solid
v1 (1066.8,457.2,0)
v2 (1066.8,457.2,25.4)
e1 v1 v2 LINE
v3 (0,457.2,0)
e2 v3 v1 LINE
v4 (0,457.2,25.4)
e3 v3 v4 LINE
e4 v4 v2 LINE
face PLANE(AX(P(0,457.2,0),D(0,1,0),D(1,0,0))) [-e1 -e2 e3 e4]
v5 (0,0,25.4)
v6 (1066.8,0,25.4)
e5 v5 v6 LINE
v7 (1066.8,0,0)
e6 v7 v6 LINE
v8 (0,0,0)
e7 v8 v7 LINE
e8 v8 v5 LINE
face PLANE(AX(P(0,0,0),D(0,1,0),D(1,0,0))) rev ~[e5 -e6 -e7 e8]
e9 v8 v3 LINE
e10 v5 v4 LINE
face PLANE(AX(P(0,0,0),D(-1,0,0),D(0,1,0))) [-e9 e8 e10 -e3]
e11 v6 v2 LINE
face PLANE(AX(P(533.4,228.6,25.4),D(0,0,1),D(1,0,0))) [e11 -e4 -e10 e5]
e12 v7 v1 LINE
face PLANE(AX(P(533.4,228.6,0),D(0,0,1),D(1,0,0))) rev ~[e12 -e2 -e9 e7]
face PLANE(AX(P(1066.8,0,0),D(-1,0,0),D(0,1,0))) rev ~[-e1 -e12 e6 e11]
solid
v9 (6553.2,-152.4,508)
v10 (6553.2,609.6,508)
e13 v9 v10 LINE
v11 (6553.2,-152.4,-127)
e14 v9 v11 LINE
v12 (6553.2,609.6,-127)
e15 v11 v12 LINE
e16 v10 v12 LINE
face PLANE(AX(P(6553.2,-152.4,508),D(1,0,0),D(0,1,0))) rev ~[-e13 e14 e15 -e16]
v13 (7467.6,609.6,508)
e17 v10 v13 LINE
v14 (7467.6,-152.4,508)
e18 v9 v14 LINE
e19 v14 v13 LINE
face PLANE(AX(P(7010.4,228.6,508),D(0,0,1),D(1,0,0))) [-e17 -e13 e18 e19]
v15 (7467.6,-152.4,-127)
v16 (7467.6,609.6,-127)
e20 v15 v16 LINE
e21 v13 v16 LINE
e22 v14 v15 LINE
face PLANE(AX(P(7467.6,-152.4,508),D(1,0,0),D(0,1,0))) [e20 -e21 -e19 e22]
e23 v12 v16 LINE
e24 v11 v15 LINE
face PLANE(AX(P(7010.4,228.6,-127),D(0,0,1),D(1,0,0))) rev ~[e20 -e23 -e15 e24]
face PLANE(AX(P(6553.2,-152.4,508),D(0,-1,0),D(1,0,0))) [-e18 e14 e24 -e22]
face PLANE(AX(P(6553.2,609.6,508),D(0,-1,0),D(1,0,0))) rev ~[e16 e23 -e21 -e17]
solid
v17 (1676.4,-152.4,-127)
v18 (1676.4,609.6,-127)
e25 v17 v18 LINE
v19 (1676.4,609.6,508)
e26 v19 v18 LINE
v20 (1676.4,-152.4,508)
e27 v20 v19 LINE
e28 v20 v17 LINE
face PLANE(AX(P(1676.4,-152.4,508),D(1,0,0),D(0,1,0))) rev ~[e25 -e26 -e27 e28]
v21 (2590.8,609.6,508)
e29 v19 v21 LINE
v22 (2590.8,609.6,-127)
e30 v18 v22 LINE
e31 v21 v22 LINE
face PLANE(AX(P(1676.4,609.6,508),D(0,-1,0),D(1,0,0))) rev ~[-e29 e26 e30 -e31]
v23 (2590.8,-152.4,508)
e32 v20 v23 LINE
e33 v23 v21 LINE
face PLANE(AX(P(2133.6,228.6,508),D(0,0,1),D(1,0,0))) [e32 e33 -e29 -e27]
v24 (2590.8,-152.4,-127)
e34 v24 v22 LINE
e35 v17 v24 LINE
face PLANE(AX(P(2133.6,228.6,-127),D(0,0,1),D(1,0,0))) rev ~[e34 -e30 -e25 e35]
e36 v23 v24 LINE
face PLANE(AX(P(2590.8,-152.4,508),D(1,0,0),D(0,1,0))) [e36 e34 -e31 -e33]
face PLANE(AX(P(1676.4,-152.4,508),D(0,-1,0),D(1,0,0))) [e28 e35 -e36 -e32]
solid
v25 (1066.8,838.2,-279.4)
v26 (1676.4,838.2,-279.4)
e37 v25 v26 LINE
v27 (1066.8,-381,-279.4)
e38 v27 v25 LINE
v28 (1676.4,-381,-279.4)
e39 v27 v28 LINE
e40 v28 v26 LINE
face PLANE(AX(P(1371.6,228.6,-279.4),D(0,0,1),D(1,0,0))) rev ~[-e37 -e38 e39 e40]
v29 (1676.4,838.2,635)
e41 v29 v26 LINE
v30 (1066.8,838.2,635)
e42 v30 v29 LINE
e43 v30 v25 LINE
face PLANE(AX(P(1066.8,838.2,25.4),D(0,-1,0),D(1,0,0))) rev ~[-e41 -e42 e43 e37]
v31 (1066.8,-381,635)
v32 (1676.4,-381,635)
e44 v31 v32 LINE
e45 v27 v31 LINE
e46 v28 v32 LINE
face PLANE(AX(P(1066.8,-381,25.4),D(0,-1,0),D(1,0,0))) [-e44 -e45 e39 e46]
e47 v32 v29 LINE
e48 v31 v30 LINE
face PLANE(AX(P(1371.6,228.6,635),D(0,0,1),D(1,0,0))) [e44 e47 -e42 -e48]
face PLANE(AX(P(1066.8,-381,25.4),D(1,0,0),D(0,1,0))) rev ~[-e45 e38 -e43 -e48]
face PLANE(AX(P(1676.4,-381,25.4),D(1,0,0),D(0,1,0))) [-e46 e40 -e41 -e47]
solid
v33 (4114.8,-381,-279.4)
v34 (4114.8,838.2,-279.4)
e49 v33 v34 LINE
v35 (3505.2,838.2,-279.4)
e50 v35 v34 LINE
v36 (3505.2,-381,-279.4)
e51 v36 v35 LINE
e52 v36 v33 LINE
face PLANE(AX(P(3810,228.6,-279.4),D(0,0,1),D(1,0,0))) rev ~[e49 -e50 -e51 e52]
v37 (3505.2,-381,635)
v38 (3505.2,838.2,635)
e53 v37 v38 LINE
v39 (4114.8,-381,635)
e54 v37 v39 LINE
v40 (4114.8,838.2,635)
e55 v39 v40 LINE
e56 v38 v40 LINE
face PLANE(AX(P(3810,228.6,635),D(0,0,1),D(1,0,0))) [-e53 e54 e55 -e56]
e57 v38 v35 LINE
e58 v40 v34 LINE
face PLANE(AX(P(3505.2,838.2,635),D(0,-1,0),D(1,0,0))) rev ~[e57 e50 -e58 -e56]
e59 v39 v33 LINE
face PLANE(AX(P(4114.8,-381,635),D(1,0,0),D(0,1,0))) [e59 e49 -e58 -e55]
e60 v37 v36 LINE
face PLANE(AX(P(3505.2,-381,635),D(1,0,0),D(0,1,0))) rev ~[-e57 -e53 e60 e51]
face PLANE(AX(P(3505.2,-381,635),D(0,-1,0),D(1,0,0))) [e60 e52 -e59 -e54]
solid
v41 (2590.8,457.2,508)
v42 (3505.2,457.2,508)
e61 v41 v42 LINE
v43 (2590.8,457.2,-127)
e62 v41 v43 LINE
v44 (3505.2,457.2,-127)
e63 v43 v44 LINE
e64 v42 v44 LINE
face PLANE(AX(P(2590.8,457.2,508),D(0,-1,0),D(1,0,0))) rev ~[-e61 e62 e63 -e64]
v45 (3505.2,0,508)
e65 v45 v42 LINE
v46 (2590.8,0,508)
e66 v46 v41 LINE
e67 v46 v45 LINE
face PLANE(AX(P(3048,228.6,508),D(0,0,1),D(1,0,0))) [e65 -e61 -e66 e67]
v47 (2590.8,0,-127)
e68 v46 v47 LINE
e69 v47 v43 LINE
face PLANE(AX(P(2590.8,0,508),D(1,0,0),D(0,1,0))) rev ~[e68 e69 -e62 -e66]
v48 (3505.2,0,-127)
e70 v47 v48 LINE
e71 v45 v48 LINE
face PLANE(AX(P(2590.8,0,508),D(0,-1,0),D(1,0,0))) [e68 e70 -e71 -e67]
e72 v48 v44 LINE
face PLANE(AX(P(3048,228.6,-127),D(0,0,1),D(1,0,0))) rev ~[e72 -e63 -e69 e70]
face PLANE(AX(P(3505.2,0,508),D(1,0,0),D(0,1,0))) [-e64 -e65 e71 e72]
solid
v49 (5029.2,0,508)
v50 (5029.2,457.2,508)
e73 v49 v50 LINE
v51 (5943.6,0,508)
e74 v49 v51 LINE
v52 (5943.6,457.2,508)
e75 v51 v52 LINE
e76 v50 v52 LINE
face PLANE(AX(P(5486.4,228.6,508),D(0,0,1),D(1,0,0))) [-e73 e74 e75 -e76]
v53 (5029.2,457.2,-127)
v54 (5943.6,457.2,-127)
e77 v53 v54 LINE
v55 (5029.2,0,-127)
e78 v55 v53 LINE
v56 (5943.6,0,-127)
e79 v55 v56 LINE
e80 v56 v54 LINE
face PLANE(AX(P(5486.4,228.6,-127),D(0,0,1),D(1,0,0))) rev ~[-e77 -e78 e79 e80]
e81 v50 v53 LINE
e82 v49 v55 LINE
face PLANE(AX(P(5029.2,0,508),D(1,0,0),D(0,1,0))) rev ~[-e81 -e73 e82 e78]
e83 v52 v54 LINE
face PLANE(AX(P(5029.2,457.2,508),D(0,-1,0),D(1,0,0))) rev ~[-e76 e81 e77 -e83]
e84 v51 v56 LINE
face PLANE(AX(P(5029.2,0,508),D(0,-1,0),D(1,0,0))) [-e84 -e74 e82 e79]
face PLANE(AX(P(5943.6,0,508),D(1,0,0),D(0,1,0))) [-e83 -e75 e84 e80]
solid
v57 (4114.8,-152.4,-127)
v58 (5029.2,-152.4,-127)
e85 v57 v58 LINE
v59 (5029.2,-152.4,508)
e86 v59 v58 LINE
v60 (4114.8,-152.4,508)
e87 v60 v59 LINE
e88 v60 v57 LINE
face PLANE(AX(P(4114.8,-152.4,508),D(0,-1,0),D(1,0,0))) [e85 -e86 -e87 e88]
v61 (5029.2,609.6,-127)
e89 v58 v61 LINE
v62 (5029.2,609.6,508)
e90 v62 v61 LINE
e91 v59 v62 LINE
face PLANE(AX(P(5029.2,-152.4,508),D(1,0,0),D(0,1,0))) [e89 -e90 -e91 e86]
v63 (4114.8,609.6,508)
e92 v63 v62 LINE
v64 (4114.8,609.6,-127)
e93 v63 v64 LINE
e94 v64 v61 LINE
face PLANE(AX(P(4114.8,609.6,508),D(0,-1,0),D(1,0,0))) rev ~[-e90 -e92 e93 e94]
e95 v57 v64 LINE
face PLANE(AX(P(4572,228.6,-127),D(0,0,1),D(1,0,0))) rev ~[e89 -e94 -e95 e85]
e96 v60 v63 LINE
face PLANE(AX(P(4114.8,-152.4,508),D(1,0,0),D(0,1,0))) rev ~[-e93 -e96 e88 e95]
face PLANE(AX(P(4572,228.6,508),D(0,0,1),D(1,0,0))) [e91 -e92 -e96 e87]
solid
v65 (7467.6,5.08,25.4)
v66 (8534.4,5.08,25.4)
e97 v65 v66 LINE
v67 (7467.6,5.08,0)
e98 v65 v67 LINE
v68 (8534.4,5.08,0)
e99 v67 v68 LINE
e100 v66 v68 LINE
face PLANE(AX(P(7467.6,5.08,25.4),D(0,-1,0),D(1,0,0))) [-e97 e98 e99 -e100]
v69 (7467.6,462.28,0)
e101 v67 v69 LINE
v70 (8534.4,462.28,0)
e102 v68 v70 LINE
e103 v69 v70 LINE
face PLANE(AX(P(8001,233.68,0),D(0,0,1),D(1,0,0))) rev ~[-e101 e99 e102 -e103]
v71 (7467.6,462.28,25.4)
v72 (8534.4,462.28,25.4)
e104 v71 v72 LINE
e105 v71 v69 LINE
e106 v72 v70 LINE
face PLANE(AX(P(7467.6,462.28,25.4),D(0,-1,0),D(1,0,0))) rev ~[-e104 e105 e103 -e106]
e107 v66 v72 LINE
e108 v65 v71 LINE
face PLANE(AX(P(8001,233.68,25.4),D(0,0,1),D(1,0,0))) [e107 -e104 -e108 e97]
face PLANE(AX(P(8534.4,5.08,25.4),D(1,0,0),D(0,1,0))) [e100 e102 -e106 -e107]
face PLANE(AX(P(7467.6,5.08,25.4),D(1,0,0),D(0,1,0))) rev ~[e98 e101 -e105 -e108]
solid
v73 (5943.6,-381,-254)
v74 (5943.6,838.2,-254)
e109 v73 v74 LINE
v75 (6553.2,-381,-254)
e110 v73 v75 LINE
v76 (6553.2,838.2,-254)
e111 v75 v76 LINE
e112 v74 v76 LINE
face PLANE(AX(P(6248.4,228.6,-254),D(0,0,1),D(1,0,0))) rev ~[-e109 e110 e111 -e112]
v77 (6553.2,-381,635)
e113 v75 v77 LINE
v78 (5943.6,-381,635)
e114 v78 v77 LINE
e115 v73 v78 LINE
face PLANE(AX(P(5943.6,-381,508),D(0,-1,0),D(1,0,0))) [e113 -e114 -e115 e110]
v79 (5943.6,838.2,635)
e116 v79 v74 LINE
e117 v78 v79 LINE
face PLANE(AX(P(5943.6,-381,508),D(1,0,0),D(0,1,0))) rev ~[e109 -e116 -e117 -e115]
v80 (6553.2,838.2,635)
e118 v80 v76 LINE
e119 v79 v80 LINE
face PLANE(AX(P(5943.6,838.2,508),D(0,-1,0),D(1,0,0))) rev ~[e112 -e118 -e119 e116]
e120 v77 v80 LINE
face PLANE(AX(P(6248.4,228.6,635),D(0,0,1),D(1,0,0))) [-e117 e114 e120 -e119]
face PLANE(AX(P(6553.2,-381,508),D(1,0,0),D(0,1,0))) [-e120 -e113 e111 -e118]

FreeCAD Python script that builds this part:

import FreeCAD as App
import Part
import Sketcher

V = App.Vector
Q = App.Units.Quantity


def add_polygon(sketch, points):
    """Adds a closed chain of lines whose ends are joined by coincident constraints."""
    first, n = sketch.GeometryCount, len(points)
    for a, b in zip(points, points[1:] + points[:1]):
        sketch.addGeometry(Part.LineSegment(App.Vector(*a, 0), App.Vector(*b, 0)), False)
    for i in range(n):
        sketch.addConstraint(Sketcher.Constraint("Coincident", first + i, 2, first + (i + 1) % n, 1))

doc = App.newDocument("Part")
params = doc.addObject("Spreadsheet::Sheet", "Params")
for row, (alias, value) in enumerate([
    ("sketch1_width", "42 in"),
    ("sketch1_height", "18 in"),
    ("pad1_length", "1 in"),
    ("sketch2_width", "24 in"),
    ("sketch2_height", "48 in"),
    ("pad2_length", "24 in"),
    ("pad2_length2", "12 in"),
    ("sketch3_width", "36 in"),
    ("sketch3_height", "18 in"),
    ("pad3_length", "25 in"),
    ("sketch4_width", "36 in"),
    ("sketch4_height", "30 in"),
    ("pad4_length", "25 in"),
    ("sketch5_width", "24 in"),
    ("sketch5_height", "48 in"),
    ("pad5_length", "36 in"),
    ("sketch6_width", "36 in"),
    ("sketch6_height", "30 in"),
    ("pad6_length", "25 in"),
    ("sketch7_width", "36 in"),
    ("sketch7_height", "18 in"),
    ("pad7_length", "25 in"),
    ("sketch8_width", "24 in"),
    ("sketch8_height", "48 in"),
    ("pad8_length", "5 in"),
    ("pad8_length2", "30 in"),
    ("sketch9_width", "36 in"),
    ("sketch9_height", "30 in"),
    ("pad9_length", "25 in"),
    ("sketch10_width", "42 in"),
    ("sketch10_height", "18 in"),
    ("pad10_length", "1 in"),
], start=1):
    params.set(f"A{row}", alias)
    params.set(f"B{row}", "=" + value)
    params.setAlias(f"B{row}", alias)

body = doc.addObject("PartDesign::Body", "Body")

# Sketch on XY plane
sketch1 = doc.addObject("Sketcher::SketchObject", "Sketch")
body.addObject(sketch1)
sketch1.AttachmentSupport = (doc.XY_Plane, [""])
sketch1.MapMode = "FlatFace"
add_polygon(sketch1, [(0, 457), (0, 0), (1067, 0), (1067, 457)])  # lines 0-3
sketch1.addConstraint([
    Sketcher.Constraint("Vertical", 0),
    Sketcher.Constraint("Horizontal", 1),
    Sketcher.Constraint("Vertical", 2),
    Sketcher.Constraint("Horizontal", 3),
    Sketcher.Constraint("Coincident", 0, 2, -1, 1),
    Sketcher.Constraint("DistanceX", 1, 1, 1, 2, Q("42 in")),
    Sketcher.Constraint("DistanceY", 0, 2, 0, 1, Q("18 in")),
])
sketch1.setExpression("Constraints[9]", "Params.sketch1_width")
sketch1.setExpression("Constraints[10]", "Params.sketch1_height")
pad1 = doc.addObject("PartDesign::Pad", "Pad")
body.addObject(pad1)
pad1.Profile = sketch1
pad1.setExpression("Length", "Params.pad1_length")
body2 = doc.addObject("PartDesign::Body", "Body001")

# Sketch on XY plane
sketch2 = doc.addObject("Sketcher::SketchObject", "Sketch001")
body2.addObject(sketch2)
sketch2.AttachmentSupport = (doc.getObject("XY_Plane001"), [""])
sketch2.MapMode = "FlatFace"
sketch2.AttachmentOffset = App.Placement(V(0, 0, 1 * 25.4), App.Rotation())
add_polygon(sketch2, [(1067, 838), (1067, -381), (1676, -381), (1676, 838)])  # lines 0-3
sketch2.addConstraint([
    Sketcher.Constraint("Vertical", 0),
    Sketcher.Constraint("Horizontal", 1),
    Sketcher.Constraint("Vertical", 2),
    Sketcher.Constraint("Horizontal", 3),
    Sketcher.Constraint("DistanceX", 1, 1, 1, 2, Q("24 in")),
    Sketcher.Constraint("DistanceY", 0, 2, 0, 1, Q("48 in")),
    Sketcher.Constraint("DistanceX", -1, 1, 0, 2, Q("42 in")),
    Sketcher.Constraint("DistanceY", 0, 2, -1, 1, Q("15 in")),
])
sketch2.setExpression("Constraints[8]", "Params.sketch2_width")
sketch2.setExpression("Constraints[9]", "Params.sketch2_height")
pad2 = doc.addObject("PartDesign::Pad", "Pad001")
body2.addObject(pad2)
pad2.Profile = sketch2
pad2.Type = "TwoLengths"
pad2.setExpression("Length", "Params.pad2_length")
pad2.setExpression("Length2", "Params.pad2_length2")
body3 = doc.addObject("PartDesign::Body", "Body002")

# Sketch on XY plane
sketch3 = doc.addObject("Sketcher::SketchObject", "Sketch002")
body3.addObject(sketch3)
sketch3.AttachmentSupport = (doc.getObject("XY_Plane002"), [""])
sketch3.MapMode = "FlatFace"
sketch3.AttachmentOffset = App.Placement(V(0, 0, 20 * 25.4), App.Rotation())
add_polygon(sketch3, [(2591, 457), (2591, 0), (3505, 0), (3505, 457)])  # lines 0-3
sketch3.addConstraint([
    Sketcher.Constraint("Vertical", 0),
    Sketcher.Constraint("Horizontal", 1),
    Sketcher.Constraint("Vertical", 2),
    Sketcher.Constraint("Horizontal", 3),
    Sketcher.Constraint("PointOnObject", 0, 2, -1),
    Sketcher.Constraint("DistanceX", 1, 1, 1, 2, Q("36 in")),
    Sketcher.Constraint("DistanceY", 0, 2, 0, 1, Q("18 in")),
    Sketcher.Constraint("DistanceX", -1, 1, 0, 2, Q("102 in")),
])
sketch3.setExpression("Constraints[9]", "Params.sketch3_width")
sketch3.setExpression("Constraints[10]", "Params.sketch3_height")
pad3 = doc.addObject("PartDesign::Pad", "Pad002")
body3.addObject(pad3)
pad3.Profile = sketch3
pad3.setExpression("Length", "Params.pad3_length")
pad3.Reversed = True
body4 = doc.addObject("PartDesign::Body", "Body003")

# Sketch on XY plane
sketch4 = doc.addObject("Sketcher::SketchObject", "Sketch003")
body4.addObject(sketch4)
sketch4.AttachmentSupport = (doc.getObject("XY_Plane003"), [""])
sketch4.MapMode = "FlatFace"
sketch4.AttachmentOffset = App.Placement(V(0, 0, 20 * 25.4), App.Rotation())
add_polygon(sketch4, [(1676, 610), (1676, -152), (2591, -152), (2591, 610)])  # lines 0-3
sketch4.addConstraint([
    Sketcher.Constraint("Vertical", 0),
    Sketcher.Constraint("Horizontal", 1),
    Sketcher.Constraint("Vertical", 2),
    Sketcher.Constraint("Horizontal", 3),
    Sketcher.Constraint("DistanceX", 1, 1, 1, 2, Q("36 in")),
    Sketcher.Constraint("DistanceY", 0, 2, 0, 1, Q("30 in")),
    Sketcher.Constraint("DistanceX", -1, 1, 0, 2, Q("66 in")),
    Sketcher.Constraint("DistanceY", 0, 2, -1, 1, Q("6 in")),
])
sketch4.setExpression("Constraints[8]", "Params.sketch4_width")
sketch4.setExpression("Constraints[9]", "Params.sketch4_height")
pad4 = doc.addObject("PartDesign::Pad", "Pad003")
body4.addObject(pad4)
pad4.Profile = sketch4
pad4.setExpression("Length", "Params.pad4_length")
pad4.Reversed = True
body5 = doc.addObject("PartDesign::Body", "Body004")

# Sketch on XY plane
sketch5 = doc.addObject("Sketcher::SketchObject", "Sketch004")
body5.addObject(sketch5)
sketch5.AttachmentSupport = (doc.getObject("XY_Plane004"), [""])
sketch5.MapMode = "FlatFace"
sketch5.AttachmentOffset = App.Placement(V(0, 0, 25 * 25.4), App.Rotation())
add_polygon(sketch5, [(3505, 838), (3505, -381), (4115, -381), (4115, 838)])  # lines 0-3
sketch5.addConstraint([
    Sketcher.Constraint("Vertical", 0),
    Sketcher.Constraint("Horizontal", 1),
    Sketcher.Constraint("Vertical", 2),
    Sketcher.Constraint("Horizontal", 3),
    Sketcher.Constraint("DistanceX", 1, 1, 1, 2, Q("24 in")),
    Sketcher.Constraint("DistanceY", 0, 2, 0, 1, Q("48 in")),
    Sketcher.Constraint("DistanceX", -1, 1, 0, 2, Q("138 in")),
    Sketcher.Constraint("DistanceY", 0, 2, -1, 1, Q("15 in")),
])
sketch5.setExpression("Constraints[8]", "Params.sketch5_width")
sketch5.setExpression("Constraints[9]", "Params.sketch5_height")
pad5 = doc.addObject("PartDesign::Pad", "Pad004")
body5.addObject(pad5)
pad5.Profile = sketch5
pad5.setExpression("Length", "Params.pad5_length")
pad5.Reversed = True
body6 = doc.addObject("PartDesign::Body", "Body005")

# Sketch on XY plane
sketch6 = doc.addObject("Sketcher::SketchObject", "Sketch005")
body6.addObject(sketch6)
sketch6.AttachmentSupport = (doc.getObject("XY_Plane005"), [""])
sketch6.MapMode = "FlatFace"
sketch6.AttachmentOffset = App.Placement(V(0, 0, 20 * 25.4), App.Rotation())
add_polygon(sketch6, [(4115, 610), (4115, -152), (5029, -152), (5029, 610)])  # lines 0-3
sketch6.addConstraint([
    Sketcher.Constraint("Vertical", 0),
    Sketcher.Constraint("Horizontal", 1),
    Sketcher.Constraint("Vertical", 2),
    Sketcher.Constraint("Horizontal", 3),
    Sketcher.Constraint("DistanceX", 1, 1, 1, 2, Q("36 in")),
    Sketcher.Constraint("DistanceY", 0, 2, 0, 1, Q("30 in")),
    Sketcher.Constraint("DistanceX", -1, 1, 0, 2, Q("162 in")),
    Sketcher.Constraint("DistanceY", 0, 2, -1, 1, Q("6 in")),
])
sketch6.setExpression("Constraints[8]", "Params.sketch6_width")
sketch6.setExpression("Constraints[9]", "Params.sketch6_height")
pad6 = doc.addObject("PartDesign::Pad", "Pad005")
body6.addObject(pad6)
pad6.Profile = sketch6
pad6.setExpression("Length", "Params.pad6_length")
pad6.Reversed = True
body7 = doc.addObject("PartDesign::Body", "Body006")

# Sketch on XY plane
sketch7 = doc.addObject("Sketcher::SketchObject", "Sketch006")
body7.addObject(sketch7)
sketch7.AttachmentSupport = (doc.getObject("XY_Plane006"), [""])
sketch7.MapMode = "FlatFace"
sketch7.AttachmentOffset = App.Placement(V(0, 0, 20 * 25.4), App.Rotation())
add_polygon(sketch7, [(5029, 457), (5029, 0), (5944, 0), (5944, 457)])  # lines 0-3
sketch7.addConstraint([
    Sketcher.Constraint("Vertical", 0),
    Sketcher.Constraint("Horizontal", 1),
    Sketcher.Constraint("Vertical", 2),
    Sketcher.Constraint("Horizontal", 3),
    Sketcher.Constraint("PointOnObject", 0, 2, -1),
    Sketcher.Constraint("DistanceX", 1, 1, 1, 2, Q("36 in")),
    Sketcher.Constraint("DistanceY", 0, 2, 0, 1, Q("18 in")),
    Sketcher.Constraint("DistanceX", -1, 1, 0, 2, Q("198 in")),
])
sketch7.setExpression("Constraints[9]", "Params.sketch7_width")
sketch7.setExpression("Constraints[10]", "Params.sketch7_height")
pad7 = doc.addObject("PartDesign::Pad", "Pad006")
body7.addObject(pad7)
pad7.Profile = sketch7
pad7.setExpression("Length", "Params.pad7_length")
pad7.Reversed = True
body8 = doc.addObject("PartDesign::Body", "Body007")

# Sketch on XY plane
sketch8 = doc.addObject("Sketcher::SketchObject", "Sketch007")
body8.addObject(sketch8)
sketch8.AttachmentSupport = (doc.getObject("XY_Plane007"), [""])
sketch8.MapMode = "FlatFace"
sketch8.AttachmentOffset = App.Placement(V(0, 0, 20 * 25.4), App.Rotation())
add_polygon(sketch8, [(5944, 838), (5944, -381), (6553, -381), (6553, 838)])  # lines 0-3
sketch8.addConstraint([
    Sketcher.Constraint("Vertical", 0),
    Sketcher.Constraint("Horizontal", 1),
    Sketcher.Constraint("Vertical", 2),
    Sketcher.Constraint("Horizontal", 3),
    Sketcher.Constraint("DistanceX", 1, 1, 1, 2, Q("24 in")),
    Sketcher.Constraint("DistanceY", 0, 2, 0, 1, Q("48 in")),
    Sketcher.Constraint("DistanceX", -1, 1, 0, 2, Q("234 in")),
    Sketcher.Constraint("DistanceY", 0, 2, -1, 1, Q("15 in")),
])
sketch8.setExpression("Constraints[8]", "Params.sketch8_width")
sketch8.setExpression("Constraints[9]", "Params.sketch8_height")
pad8 = doc.addObject("PartDesign::Pad", "Pad007")
body8.addObject(pad8)
pad8.Profile = sketch8
pad8.Type = "TwoLengths"
pad8.setExpression("Length", "Params.pad8_length")
pad8.setExpression("Length2", "Params.pad8_length2")
body9 = doc.addObject("PartDesign::Body", "Body008")

# Sketch on XY plane
sketch9 = doc.addObject("Sketcher::SketchObject", "Sketch008")
body9.addObject(sketch9)
sketch9.AttachmentSupport = (doc.getObject("XY_Plane008"), [""])
sketch9.MapMode = "FlatFace"
sketch9.AttachmentOffset = App.Placement(V(0, 0, 20 * 25.4), App.Rotation())
add_polygon(sketch9, [(6553, 610), (6553, -152), (7468, -152), (7468, 610)])  # lines 0-3
sketch9.addConstraint([
    Sketcher.Constraint("Vertical", 0),
    Sketcher.Constraint("Horizontal", 1),
    Sketcher.Constraint("Vertical", 2),
    Sketcher.Constraint("Horizontal", 3),
    Sketcher.Constraint("DistanceX", 1, 1, 1, 2, Q("36 in")),
    Sketcher.Constraint("DistanceY", 0, 2, 0, 1, Q("30 in")),
    Sketcher.Constraint("DistanceX", -1, 1, 0, 2, Q("258 in")),
    Sketcher.Constraint("DistanceY", 0, 2, -1, 1, Q("6 in")),
])
sketch9.setExpression("Constraints[8]", "Params.sketch9_width")
sketch9.setExpression("Constraints[9]", "Params.sketch9_height")
pad9 = doc.addObject("PartDesign::Pad", "Pad008")
body9.addObject(pad9)
pad9.Profile = sketch9
pad9.setExpression("Length", "Params.pad9_length")
pad9.Reversed = True
body10 = doc.addObject("PartDesign::Body", "Body009")

# Sketch on XY plane
sketch10 = doc.addObject("Sketcher::SketchObject", "Sketch009")
body10.addObject(sketch10)
sketch10.AttachmentSupport = (doc.getObject("XY_Plane009"), [""])
sketch10.MapMode = "FlatFace"
sketch10.AttachmentOffset = App.Placement(V(0, 0, 1 * 25.4), App.Rotation())
add_polygon(sketch10, [(7468, 462), (7468, 5), (8534, 5), (8534, 462)])  # lines 0-3
sketch10.addConstraint([
    Sketcher.Constraint("Vertical", 0),
    Sketcher.Constraint("Horizontal", 1),
    Sketcher.Constraint("Vertical", 2),
    Sketcher.Constraint("Horizontal", 3),
    Sketcher.Constraint("DistanceX", 1, 1, 1, 2, Q("42 in")),
    Sketcher.Constraint("DistanceY", 0, 2, 0, 1, Q("18 in")),
    Sketcher.Constraint("DistanceX", -1, 1, 0, 2, Q("294 in")),
    Sketcher.Constraint("DistanceY", -1, 1, 0, 2, Q("0.2 in")),
])
sketch10.setExpression("Constraints[8]", "Params.sketch10_width")
sketch10.setExpression("Constraints[9]", "Params.sketch10_height")
pad10 = doc.addObject("PartDesign::Pad", "Pad009")
body10.addObject(pad10)
pad10.Profile = sketch10
pad10.setExpression("Length", "Params.pad10_length")
pad10.Reversed = True

doc.recompute()
